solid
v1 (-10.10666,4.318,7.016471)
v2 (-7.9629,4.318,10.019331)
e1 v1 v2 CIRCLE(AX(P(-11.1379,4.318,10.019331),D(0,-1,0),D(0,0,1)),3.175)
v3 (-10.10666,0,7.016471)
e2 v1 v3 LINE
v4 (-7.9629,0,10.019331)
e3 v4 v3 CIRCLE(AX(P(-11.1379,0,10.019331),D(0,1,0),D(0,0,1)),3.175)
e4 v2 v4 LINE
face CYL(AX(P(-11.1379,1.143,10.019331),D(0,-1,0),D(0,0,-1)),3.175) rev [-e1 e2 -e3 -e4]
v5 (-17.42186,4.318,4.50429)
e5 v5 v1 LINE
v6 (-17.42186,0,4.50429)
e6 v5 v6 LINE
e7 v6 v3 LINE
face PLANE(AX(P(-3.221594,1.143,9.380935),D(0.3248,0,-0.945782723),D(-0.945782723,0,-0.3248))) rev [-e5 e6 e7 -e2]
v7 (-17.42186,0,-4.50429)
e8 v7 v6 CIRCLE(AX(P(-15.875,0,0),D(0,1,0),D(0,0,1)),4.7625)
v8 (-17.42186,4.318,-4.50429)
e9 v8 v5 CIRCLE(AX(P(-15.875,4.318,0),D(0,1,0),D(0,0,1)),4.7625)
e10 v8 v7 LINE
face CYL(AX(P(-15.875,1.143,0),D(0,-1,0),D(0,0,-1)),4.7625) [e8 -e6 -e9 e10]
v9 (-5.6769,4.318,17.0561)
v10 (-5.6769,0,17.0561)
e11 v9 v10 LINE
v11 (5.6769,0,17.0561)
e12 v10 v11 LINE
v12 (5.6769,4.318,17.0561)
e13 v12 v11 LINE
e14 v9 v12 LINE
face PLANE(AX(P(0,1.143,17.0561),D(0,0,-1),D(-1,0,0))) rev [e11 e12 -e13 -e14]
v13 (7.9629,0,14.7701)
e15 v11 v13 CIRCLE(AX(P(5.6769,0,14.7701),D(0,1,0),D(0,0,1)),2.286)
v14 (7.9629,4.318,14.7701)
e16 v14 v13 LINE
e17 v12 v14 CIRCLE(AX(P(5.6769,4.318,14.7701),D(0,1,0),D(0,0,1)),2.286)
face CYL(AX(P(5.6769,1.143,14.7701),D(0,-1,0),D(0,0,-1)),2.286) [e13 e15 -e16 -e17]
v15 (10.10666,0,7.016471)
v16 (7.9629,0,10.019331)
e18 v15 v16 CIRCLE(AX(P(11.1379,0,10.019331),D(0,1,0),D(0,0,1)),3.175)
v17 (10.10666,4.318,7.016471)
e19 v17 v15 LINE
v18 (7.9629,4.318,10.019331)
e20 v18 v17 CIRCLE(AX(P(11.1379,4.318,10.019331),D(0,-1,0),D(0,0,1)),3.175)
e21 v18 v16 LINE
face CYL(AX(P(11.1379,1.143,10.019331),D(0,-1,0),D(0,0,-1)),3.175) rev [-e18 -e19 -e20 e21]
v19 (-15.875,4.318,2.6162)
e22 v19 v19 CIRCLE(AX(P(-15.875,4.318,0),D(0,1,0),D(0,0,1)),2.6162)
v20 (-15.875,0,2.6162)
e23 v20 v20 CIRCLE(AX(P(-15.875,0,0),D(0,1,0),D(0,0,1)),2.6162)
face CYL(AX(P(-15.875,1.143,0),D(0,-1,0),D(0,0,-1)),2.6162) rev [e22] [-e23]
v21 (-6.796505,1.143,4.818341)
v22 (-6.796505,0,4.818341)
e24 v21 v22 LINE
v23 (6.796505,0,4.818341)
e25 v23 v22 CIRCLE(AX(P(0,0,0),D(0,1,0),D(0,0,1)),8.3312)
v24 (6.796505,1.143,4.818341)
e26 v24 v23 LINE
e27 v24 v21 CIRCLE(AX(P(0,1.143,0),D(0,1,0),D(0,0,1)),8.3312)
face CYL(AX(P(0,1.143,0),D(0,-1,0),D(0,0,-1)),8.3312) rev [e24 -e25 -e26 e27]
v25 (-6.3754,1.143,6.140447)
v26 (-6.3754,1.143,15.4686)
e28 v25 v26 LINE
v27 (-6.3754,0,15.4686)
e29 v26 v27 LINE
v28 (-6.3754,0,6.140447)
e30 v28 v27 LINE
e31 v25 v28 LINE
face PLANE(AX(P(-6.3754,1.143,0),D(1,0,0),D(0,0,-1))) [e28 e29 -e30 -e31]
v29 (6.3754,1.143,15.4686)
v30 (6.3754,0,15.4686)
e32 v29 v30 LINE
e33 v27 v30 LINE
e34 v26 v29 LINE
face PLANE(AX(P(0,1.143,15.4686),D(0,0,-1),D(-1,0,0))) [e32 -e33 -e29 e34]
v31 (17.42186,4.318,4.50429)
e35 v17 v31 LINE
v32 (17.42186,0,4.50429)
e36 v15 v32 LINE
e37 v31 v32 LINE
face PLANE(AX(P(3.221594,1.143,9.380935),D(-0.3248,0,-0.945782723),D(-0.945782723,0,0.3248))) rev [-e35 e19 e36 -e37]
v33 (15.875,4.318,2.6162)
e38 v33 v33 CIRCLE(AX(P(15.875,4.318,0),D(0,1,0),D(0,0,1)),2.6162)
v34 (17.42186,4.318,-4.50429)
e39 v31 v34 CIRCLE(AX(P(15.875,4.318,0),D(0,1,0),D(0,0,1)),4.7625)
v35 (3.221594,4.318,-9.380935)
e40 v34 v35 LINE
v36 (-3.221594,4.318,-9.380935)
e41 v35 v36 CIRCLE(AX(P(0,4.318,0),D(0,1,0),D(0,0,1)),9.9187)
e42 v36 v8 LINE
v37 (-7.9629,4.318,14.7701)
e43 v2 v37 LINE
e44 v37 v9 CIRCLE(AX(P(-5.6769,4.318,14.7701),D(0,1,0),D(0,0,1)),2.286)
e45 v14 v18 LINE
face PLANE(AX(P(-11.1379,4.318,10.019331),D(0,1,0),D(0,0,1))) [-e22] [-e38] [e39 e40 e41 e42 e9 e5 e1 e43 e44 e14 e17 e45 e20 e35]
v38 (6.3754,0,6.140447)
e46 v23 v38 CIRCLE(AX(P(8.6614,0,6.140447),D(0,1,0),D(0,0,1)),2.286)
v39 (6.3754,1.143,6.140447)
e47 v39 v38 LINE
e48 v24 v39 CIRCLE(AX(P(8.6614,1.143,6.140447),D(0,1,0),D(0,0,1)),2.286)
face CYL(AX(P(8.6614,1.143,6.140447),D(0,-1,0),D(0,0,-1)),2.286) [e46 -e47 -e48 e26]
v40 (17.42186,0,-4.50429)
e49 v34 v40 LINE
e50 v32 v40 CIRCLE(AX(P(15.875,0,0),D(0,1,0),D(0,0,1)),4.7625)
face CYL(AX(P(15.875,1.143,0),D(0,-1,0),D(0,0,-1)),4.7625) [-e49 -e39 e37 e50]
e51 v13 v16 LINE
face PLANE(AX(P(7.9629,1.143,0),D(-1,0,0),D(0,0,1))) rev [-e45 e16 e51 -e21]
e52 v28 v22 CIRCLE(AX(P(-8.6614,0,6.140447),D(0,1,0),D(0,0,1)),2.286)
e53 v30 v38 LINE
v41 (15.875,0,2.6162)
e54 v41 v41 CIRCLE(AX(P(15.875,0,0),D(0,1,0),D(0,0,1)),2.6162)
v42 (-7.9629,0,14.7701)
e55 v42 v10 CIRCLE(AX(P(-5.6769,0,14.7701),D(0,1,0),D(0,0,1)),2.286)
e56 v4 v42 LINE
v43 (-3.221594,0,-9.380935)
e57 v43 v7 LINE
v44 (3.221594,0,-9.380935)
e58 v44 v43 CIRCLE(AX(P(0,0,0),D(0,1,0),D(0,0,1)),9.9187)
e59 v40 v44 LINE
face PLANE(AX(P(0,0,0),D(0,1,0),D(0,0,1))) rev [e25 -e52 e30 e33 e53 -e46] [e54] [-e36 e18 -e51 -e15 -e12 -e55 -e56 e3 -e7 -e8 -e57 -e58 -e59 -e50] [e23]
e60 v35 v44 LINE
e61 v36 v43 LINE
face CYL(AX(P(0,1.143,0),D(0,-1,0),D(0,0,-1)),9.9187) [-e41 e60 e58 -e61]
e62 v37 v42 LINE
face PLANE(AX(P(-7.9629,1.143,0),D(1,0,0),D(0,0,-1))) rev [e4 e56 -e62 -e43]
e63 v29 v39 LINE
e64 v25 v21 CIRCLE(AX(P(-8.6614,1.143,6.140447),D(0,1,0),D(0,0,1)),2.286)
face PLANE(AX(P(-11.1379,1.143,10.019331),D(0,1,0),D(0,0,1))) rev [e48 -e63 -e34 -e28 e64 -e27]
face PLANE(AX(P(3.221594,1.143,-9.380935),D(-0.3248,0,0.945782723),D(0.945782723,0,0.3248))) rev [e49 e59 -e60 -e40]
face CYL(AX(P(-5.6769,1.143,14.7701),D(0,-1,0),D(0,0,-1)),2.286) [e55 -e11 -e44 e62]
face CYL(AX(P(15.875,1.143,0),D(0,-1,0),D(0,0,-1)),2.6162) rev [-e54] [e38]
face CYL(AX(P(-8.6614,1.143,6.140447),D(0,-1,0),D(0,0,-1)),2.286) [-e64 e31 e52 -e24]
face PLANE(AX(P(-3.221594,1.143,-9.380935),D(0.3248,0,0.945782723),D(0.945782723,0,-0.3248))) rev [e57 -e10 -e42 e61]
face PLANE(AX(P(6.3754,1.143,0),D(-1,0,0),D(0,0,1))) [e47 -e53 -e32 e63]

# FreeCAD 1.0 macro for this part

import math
import FreeCAD as App
import Part
import Sketcher
from FreeCAD import Vector
Q = App.Units.Quantity

doc = App.newDocument("Part")
body = doc.addObject("PartDesign::Body", "Body")

# Sketch on XZ plane
sketch1 = body.newObject("Sketcher::SketchObject", "Sketch")
sketch1.AttachmentSupport = (doc.getObject("XZ_Plane"), [""])
sketch1.MapMode = "FlatFace"
sketch1.addGeometry([
    Part.LineSegment(Vector(-8, 10, 0), Vector(-8, 14.8, 0)),  # 0
    Part.ArcOfCircle(Part.Circle(Vector(-5.7, 14.8, 0), Vector(0, 0, 1), 2.3), math.radians(90), math.radians(180)),  # 1
    Part.LineSegment(Vector(-5.7, 17.1, 0), Vector(5.7, 17.1, 0)),  # 2
    Part.ArcOfCircle(Part.Circle(Vector(5.7, 14.8, 0), Vector(0, 0, 1), 2.3), math.radians(0), math.radians(90)),  # 3
    Part.LineSegment(Vector(8, 14.8, 0), Vector(8, 10, 0)),  # 4
    Part.ArcOfCircle(Part.Circle(Vector(11.1, 10, 0), Vector(0, 0, 1), 3.2), math.radians(180), math.radians(251)),  # 5
    Part.LineSegment(Vector(10.1, 7, 0), Vector(17.4, 4.5, 0)),  # 6
    Part.ArcOfCircle(Part.Circle(Vector(15.9, 0, 0), Vector(0, 0, 1), 4.8), math.radians(-71), math.radians(71)),  # 7
    Part.LineSegment(Vector(17.4, -4.5, 0), Vector(3.2, -9.4, 0)),  # 8
    Part.ArcOfCircle(Part.Circle(Vector(0, 0, 0), Vector(0, 0, 1), 9.9), math.radians(-90), math.radians(-71.05)),  # 9
    Part.ArcOfCircle(Part.Circle(Vector(0, 0, 0), Vector(0, 0, 1), 9.9), math.radians(-108.95), math.radians(-90)),  # 10
    Part.LineSegment(Vector(-3.2, -9.4, 0), Vector(-17.4, -4.5, 0)),  # 11
    Part.ArcOfCircle(Part.Circle(Vector(-15.9, 0, 0), Vector(0, 0, 1), 4.8), math.radians(109), math.radians(251)),  # 12
    Part.LineSegment(Vector(-17.4, 4.5, 0), Vector(-10.1, 7, 0)),  # 13
    Part.ArcOfCircle(Part.Circle(Vector(-11.1, 10, 0), Vector(0, 0, 1), 3.2), math.radians(-71), math.radians(0)),  # 14
    Part.Circle(Vector(-15.9, 0, 0), Vector(0, 0, 1), 2.6),  # 15
    Part.ArcOfCircle(Part.Circle(Vector(0, 0, 0), Vector(0, 0, 1), 8.3), math.radians(145), math.radians(395)),  # 16
    Part.ArcOfCircle(Part.Circle(Vector(8.7, 6.1, 0), Vector(0, 0, 1), 2.3), math.radians(-180), math.radians(-145)),  # 17
    Part.LineSegment(Vector(6.4, 6.1, 0), Vector(6.4, 15.5, 0)),  # 18
    Part.LineSegment(Vector(6.4, 15.5, 0), Vector(-6.4, 15.5, 0)),  # 19
    Part.LineSegment(Vector(-6.4, 15.5, 0), Vector(-6.4, 6.1, 0)),  # 20
    Part.ArcOfCircle(Part.Circle(Vector(-8.7, 6.1, 0), Vector(0, 0, 1), 2.3), math.radians(-35), math.radians(0)),  # 21
    Part.Circle(Vector(15.9, 0, 0), Vector(0, 0, 1), 2.6),  # 22
], False)
sketch1.addConstraint([
    Sketcher.Constraint("Tangent", 0, 2, 1, 2),
    Sketcher.Constraint("Tangent", 1, 1, 2, 1),
    Sketcher.Constraint("Tangent", 2, 2, 3, 2),
    Sketcher.Constraint("Tangent", 3, 1, 4, 1),
    Sketcher.Constraint("Tangent", 4, 2, 5, 1),
    Sketcher.Constraint("Tangent", 5, 2, 6, 1),
    Sketcher.Constraint("Tangent", 6, 2, 7, 2),
    Sketcher.Constraint("Tangent", 7, 1, 8, 1),
    Sketcher.Constraint("Tangent", 8, 2, 9, 2),
    Sketcher.Constraint("Tangent", 9, 1, 10, 2),
    Sketcher.Constraint("Tangent", 10, 1, 11, 1),
    Sketcher.Constraint("Tangent", 11, 2, 12, 2),
    Sketcher.Constraint("Tangent", 12, 1, 13, 1),
    Sketcher.Constraint("Tangent", 13, 2, 14, 1),
    Sketcher.Constraint("Tangent", 14, 2, 0, 1),
    Sketcher.Constraint("Tangent", 16, 2, 17, 2),
    Sketcher.Constraint("Tangent", 17, 1, 18, 1),
    Sketcher.Constraint("Coincident", 18, 2, 19, 1),
    Sketcher.Constraint("Coincident", 19, 2, 20, 1),
    Sketcher.Constraint("Tangent", 20, 2, 21, 2),
    Sketcher.Constraint("Tangent", 21, 1, 16, 1),
    Sketcher.Constraint("Vertical", 0),
    Sketcher.Constraint("Horizontal", 2),
    Sketcher.Constraint("Vertical", 4),
    Sketcher.Constraint("Vertical", 18),
    Sketcher.Constraint("Horizontal", 19),
    Sketcher.Constraint("Vertical", 20),
    Sketcher.Constraint("Coincident", 9, 3, -1, 1),
    Sketcher.Constraint("Coincident", 16, 3, -1, 1),
    Sketcher.Constraint("Coincident", 15, 3, 12, 3),
    Sketcher.Constraint("Coincident", 22, 3, 7, 3),
    Sketcher.Constraint("Equal", 1, 3),
    Sketcher.Constraint("Equal", 9, 10),
    Sketcher.Constraint("Equal", 7, 12),
    Sketcher.Constraint("Equal", 5, 14),
    Sketcher.Constraint("Equal", 3, 17),
    Sketcher.Constraint("Equal", 17, 21),
    Sketcher.Constraint("Equal", 15, 22),
    Sketcher.Constraint("Symmetric", 7, 3, 12, 3, -1, 1),
    Sketcher.Constraint("Symmetric", 5, 3, 14, 3, -2),
    Sketcher.Constraint("Symmetric", 6, 2, 7, 1, -1),
    Sketcher.Constraint("PointOnObject", 9, 1, -2),
    Sketcher.Constraint("Horizontal", 17, 3, 21, 3),
    Sketcher.Constraint("Radius", 1, Q("0.09 in")),
    Sketcher.Constraint("Diameter", 15, Q("0.206 in")),
    Sketcher.Constraint("Radius", 5, Q("0.125 in")),
    Sketcher.Constraint("Radius", 7, Q("0.1875 in")),
    Sketcher.Constraint("Radius", 16, Q("0.328 in")),
    Sketcher.Constraint("Radius", 9, Q("0.3905 in")),
    Sketcher.Constraint("DistanceX", 2, 1, 2, 2, Q("0.447 in")),
    Sketcher.Constraint("DistanceX", 19, 2, 19, 1, Q("0.502 in")),
    Sketcher.Constraint("DistanceX", -1, 1, 7, 3, Q("0.625 in")),
    Sketcher.Constraint("DistanceY", -1, 1, 18, 2, Q("0.609 in")),
    Sketcher.Constraint("DistanceY", 18, 2, 2, 2, Q("0.0625 in")),
])
pad1 = body.newObject("PartDesign::Pad", "Pad")
pad1.Profile = sketch1
pad1.Length = Q("0.045 in")
pad1.Reversed = True

# Sketch on XZ plane
sketch2 = body.newObject("Sketcher::SketchObject", "Sketch001")
sketch2.AttachmentSupport = (doc.getObject("XZ_Plane"), [""])
sketch2.MapMode = "FlatFace"
sketch2.AttachmentOffset = App.Placement(Vector(0, 0, -0.045 * 25.4), App.Rotation())
sketch2.addGeometry([
    Part.LineSegment(Vector(-8, 10, 0), Vector(-8, 14.8, 0)),  # 0
    Part.ArcOfCircle(Part.Circle(Vector(-5.7, 14.8, 0), Vector(0, 0, 1), 2.3), math.radians(90), math.radians(180)),  # 1
    Part.LineSegment(Vector(-5.7, 17.1, 0), Vector(5.7, 17.1, 0)),  # 2
    Part.ArcOfCircle(Part.Circle(Vector(5.7, 14.8, 0), Vector(0, 0, 1), 2.3), math.radians(0), math.radians(90)),  # 3
    Part.LineSegment(Vector(8, 14.8, 0), Vector(8, 10, 0)),  # 4
    Part.ArcOfCircle(Part.Circle(Vector(11.1, 10, 0), Vector(0, 0, 1), 3.2), math.radians(180), math.radians(251)),  # 5
    Part.LineSegment(Vector(10.1, 7, 0), Vector(17.4, 4.5, 0)),  # 6
    Part.ArcOfCircle(Part.Circle(Vector(15.9, 0, 0), Vector(0, 0, 1), 4.8), math.radians(-71), math.radians(71)),  # 7
    Part.LineSegment(Vector(17.4, -4.5, 0), Vector(3.2, -9.4, 0)),  # 8
    Part.ArcOfCircle(Part.Circle(Vector(0, 0, 0), Vector(0, 0, 1), 9.9), math.radians(-109), math.radians(-71)),  # 9
    Part.LineSegment(Vector(-3.2, -9.4, 0), Vector(-17.4, -4.5, 0)),  # 10
    Part.ArcOfCircle(Part.Circle(Vector(-15.9, 0, 0), Vector(0, 0, 1), 4.8), math.radians(109), math.radians(251)),  # 11
    Part.LineSegment(Vector(-17.4, 4.5, 0), Vector(-10.1, 7, 0)),  # 12
    Part.ArcOfCircle(Part.Circle(Vector(-11.1, 10, 0), Vector(0, 0, 1), 3.2), math.radians(-71), math.radians(0)),  # 13
    Part.Circle(Vector(-15.9, 0, 0), Vector(0, 0, 1), 2.6),  # 14
    Part.Circle(Vector(15.9, 0, 0), Vector(0, 0, 1), 2.6),  # 15
], False)
sketch2.addConstraint([
    Sketcher.Constraint("Tangent", 0, 2, 1, 2),
    Sketcher.Constraint("Tangent", 1, 1, 2, 1),
    Sketcher.Constraint("Tangent", 2, 2, 3, 2),
    Sketcher.Constraint("Tangent", 3, 1, 4, 1),
    Sketcher.Constraint("Tangent", 4, 2, 5, 1),
    Sketcher.Constraint("Tangent", 5, 2, 6, 1),
    Sketcher.Constraint("Tangent", 6, 2, 7, 2),
    Sketcher.Constraint("Tangent", 7, 1, 8, 1),
    Sketcher.Constraint("Tangent", 8, 2, 9, 2),
    Sketcher.Constraint("Tangent", 9, 1, 10, 1),
    Sketcher.Constraint("Tangent", 10, 2, 11, 2),
    Sketcher.Constraint("Tangent", 11, 1, 12, 1),
    Sketcher.Constraint("Tangent", 12, 2, 13, 1),
    Sketcher.Constraint("Tangent", 13, 2, 0, 1),
    Sketcher.Constraint("Vertical", 0),
    Sketcher.Constraint("Horizontal", 2),
    Sketcher.Constraint("Vertical", 4),
    Sketcher.Constraint("Coincident", 9, 3, -1, 1),
    Sketcher.Constraint("Coincident", 14, 3, 11, 3),
    Sketcher.Constraint("Coincident", 15, 3, 7, 3),
    Sketcher.Constraint("Equal", 1, 3),
    Sketcher.Constraint("Equal", 7, 11),
    Sketcher.Constraint("Equal", 5, 13),
    Sketcher.Constraint("Equal", 14, 15),
    Sketcher.Constraint("Symmetric", 7, 3, 11, 3, -1, 1),
    Sketcher.Constraint("Symmetric", 5, 3, 13, 3, -2),
    Sketcher.Constraint("Symmetric", 6, 2, 7, 1, -1),
    Sketcher.Constraint("Radius", 1, Q("0.09 in")),
    Sketcher.Constraint("Diameter", 14, Q("0.206 in")),
    Sketcher.Constraint("Radius", 5, Q("0.125 in")),
    Sketcher.Constraint("Radius", 7, Q("0.1875 in")),
    Sketcher.Constraint("Radius", 9, Q("0.3905 in")),
    Sketcher.Constraint("DistanceX", 2, 1, 2, 2, Q("0.447 in")),
    Sketcher.Constraint("DistanceX", 11, 3, 7, 3, Q("1.25 in")),
    Sketcher.Constraint("DistanceY", -1, 1, 1, 3, Q("0.5815 in")),
])
pad2 = body.newObject("PartDesign::Pad", "Pad001")
pad2.Profile = sketch2
pad2.Length = Q("0.125 in")
pad2.Reversed = True

doc.recompute()
